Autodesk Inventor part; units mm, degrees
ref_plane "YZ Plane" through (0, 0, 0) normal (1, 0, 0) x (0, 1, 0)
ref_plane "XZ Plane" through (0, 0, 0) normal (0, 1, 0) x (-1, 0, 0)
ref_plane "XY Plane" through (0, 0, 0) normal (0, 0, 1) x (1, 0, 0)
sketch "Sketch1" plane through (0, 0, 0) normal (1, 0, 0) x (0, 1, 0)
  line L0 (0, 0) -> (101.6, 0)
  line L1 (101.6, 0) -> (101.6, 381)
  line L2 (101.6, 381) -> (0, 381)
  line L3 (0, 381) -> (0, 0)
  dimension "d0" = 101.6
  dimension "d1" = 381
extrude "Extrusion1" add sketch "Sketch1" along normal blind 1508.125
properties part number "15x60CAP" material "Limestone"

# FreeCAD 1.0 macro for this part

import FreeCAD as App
import Part
import Sketcher

V = App.Vector
Q = App.Units.Quantity


def add_polygon(sketch, points):
    """Adds a closed chain of lines whose ends are joined by coincident constraints."""
    first, n = sketch.GeometryCount, len(points)
    for a, b in zip(points, points[1:] + points[:1]):
        sketch.addGeometry(Part.LineSegment(App.Vector(*a, 0), App.Vector(*b, 0)), False)
    for i in range(n):
        sketch.addConstraint(Sketcher.Constraint("Coincident", first + i, 2, first + (i + 1) % n, 1))

doc = App.newDocument("Part")
body = doc.addObject("PartDesign::Body", "Body")

sketch1 = body.newObject("Sketcher::SketchObject", "Sketch")
sketch1.AttachmentSupport = (doc.getObject("YZ_Plane"), [""])
sketch1.MapMode = "FlatFace"
add_polygon(sketch1, [(0, 381), (0, 0), (101.6, 0), (101.6, 381)])
sketch1.addConstraint([
    Sketcher.Constraint("Vertical", 0),
    Sketcher.Constraint("Horizontal", 1),
    Sketcher.Constraint("Vertical", 2),
    Sketcher.Constraint("Horizontal", 3),
    Sketcher.Constraint("Coincident", 0, 2, -1, 1),
    Sketcher.Constraint("DistanceX", 1, 1, 1, 2, Q("4 in")),
    Sketcher.Constraint("DistanceY", 0, 2, 0, 1, Q("15 in")),
])
pad1 = body.newObject("PartDesign::Pad", "Pad")
pad1.Profile = sketch1
pad1.Length = Q("59.375 in")

doc.recompute()
